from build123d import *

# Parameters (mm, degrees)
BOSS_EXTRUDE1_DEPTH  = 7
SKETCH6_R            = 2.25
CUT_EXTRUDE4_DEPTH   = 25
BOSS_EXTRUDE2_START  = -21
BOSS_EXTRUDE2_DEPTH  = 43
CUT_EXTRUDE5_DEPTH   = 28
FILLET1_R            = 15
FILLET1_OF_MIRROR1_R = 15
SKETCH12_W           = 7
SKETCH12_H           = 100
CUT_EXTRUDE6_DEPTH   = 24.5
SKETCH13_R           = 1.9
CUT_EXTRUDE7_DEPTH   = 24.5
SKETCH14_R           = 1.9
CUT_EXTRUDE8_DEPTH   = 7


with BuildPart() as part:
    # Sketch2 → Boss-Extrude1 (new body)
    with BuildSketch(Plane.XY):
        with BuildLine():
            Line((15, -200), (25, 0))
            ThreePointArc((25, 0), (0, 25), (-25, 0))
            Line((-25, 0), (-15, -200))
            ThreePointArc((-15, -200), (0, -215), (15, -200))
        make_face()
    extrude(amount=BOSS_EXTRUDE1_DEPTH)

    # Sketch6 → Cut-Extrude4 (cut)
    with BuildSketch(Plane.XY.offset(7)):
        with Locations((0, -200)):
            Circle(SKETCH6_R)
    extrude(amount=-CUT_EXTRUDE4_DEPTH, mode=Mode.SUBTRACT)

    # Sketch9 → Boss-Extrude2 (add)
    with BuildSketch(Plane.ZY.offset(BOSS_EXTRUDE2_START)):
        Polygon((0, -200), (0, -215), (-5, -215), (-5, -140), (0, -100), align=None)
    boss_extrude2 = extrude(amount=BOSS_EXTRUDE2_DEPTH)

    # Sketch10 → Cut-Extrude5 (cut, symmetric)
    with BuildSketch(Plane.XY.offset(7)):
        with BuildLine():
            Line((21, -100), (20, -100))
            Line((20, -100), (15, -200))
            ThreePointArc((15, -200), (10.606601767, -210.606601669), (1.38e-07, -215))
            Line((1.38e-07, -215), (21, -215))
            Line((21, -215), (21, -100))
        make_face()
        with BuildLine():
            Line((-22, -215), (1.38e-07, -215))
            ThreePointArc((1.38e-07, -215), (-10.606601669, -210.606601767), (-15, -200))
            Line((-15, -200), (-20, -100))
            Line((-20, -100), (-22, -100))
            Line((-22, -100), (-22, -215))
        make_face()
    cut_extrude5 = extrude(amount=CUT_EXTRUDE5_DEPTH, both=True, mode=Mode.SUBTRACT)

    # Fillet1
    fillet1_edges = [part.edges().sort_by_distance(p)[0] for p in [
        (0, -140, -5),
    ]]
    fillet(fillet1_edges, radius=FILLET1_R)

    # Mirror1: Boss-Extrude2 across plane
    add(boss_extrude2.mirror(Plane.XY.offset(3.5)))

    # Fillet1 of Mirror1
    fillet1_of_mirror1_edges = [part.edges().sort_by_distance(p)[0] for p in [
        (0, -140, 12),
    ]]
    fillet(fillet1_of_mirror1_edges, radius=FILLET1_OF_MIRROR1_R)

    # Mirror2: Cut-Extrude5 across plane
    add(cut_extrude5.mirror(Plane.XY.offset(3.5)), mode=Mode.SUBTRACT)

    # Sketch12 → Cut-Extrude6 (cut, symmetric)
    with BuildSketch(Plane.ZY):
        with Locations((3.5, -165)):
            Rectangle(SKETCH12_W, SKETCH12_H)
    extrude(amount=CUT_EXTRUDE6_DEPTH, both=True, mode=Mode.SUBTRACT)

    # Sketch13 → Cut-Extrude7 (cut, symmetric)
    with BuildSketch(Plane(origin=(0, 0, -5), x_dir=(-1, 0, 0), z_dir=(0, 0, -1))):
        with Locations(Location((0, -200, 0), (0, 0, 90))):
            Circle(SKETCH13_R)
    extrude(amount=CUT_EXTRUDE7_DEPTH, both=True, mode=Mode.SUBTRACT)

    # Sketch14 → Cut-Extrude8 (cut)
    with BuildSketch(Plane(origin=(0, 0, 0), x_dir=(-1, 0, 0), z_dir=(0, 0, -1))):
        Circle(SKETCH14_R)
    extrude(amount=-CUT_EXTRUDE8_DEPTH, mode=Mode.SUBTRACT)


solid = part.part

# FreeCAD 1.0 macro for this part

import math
import FreeCAD as App
import Part
import Sketcher

V = App.Vector
Q = App.Units.Quantity


def edges_at(feature, points):
    """Names of the edges that pass closest to the given points."""
    edges = feature.Shape.Edges
    near = lambda p: min(range(len(edges)), key=lambda i: edges[i].distToShape(Part.Vertex(*p))[0])
    return sorted({f"Edge{near(p) + 1}" for p in points})


def add_polygon(sketch, points):
    """Adds a closed chain of lines whose ends are joined by coincident constraints."""
    first, n = sketch.GeometryCount, len(points)
    for a, b in zip(points, points[1:] + points[:1]):
        sketch.addGeometry(Part.LineSegment(App.Vector(*a, 0), App.Vector(*b, 0)), False)
    for i in range(n):
        sketch.addConstraint(Sketcher.Constraint("Coincident", first + i, 2, first + (i + 1) % n, 1))

doc = App.newDocument("Part")
params = doc.addObject("Spreadsheet::Sheet", "Params")
for row, (alias, value) in enumerate([
    ("sketch1_radius", "25 mm"),
    ("sketch1_radius2", "15 mm"),
    ("pad1_length", "7 mm"),
    ("sketch2_diameter", "4.5 mm"),
    ("pocket1_length", "25 mm"),
    ("sketch3_width", "115 mm"),
    ("sketch3_width2", "75 mm"),
    ("sketch3_height", "5 mm"),
    ("pad2_length", "43 mm"),
    ("sketch4_radius", "15 mm"),
    ("sketch4_width", "1 mm"),
    ("sketch4_width2", "21 mm"),
    ("sketch4_width3", "22 mm"),
    ("sketch4_height", "115 mm"),
    ("pocket2_length", "56 mm"),
    ("fillet_radius", "15 mm"),
    ("fillet2_radius", "15 mm"),
    ("sketch5_width", "100 mm"),
    ("sketch5_height", "7 mm"),
    ("pocket3_length", "49 mm"),
    ("sketch6_diameter", "3.8 mm"),
    ("pocket4_length", "49 mm"),
    ("sketch7_diameter", "3.8 mm"),
    ("pocket5_length", "7 mm"),
], start=1):
    params.set(f"A{row}", alias)
    params.set(f"B{row}", "=" + value)
    params.setAlias(f"B{row}", alias)

body = doc.addObject("PartDesign::Body", "Body")

# Sketch on XY plane
sketch1 = body.newObject("Sketcher::SketchObject", "Sketch")
sketch1.AttachmentSupport = (doc.getObject("XY_Plane"), [""])
sketch1.MapMode = "FlatFace"
sketch1.addGeometry(Part.LineSegment(V(15, -200, 0), V(25, 0, 0)), False)
sketch1.addGeometry(Part.ArcOfCircle(Part.Circle(V(0, 0, 0), V(0, 0, 1), 25), math.radians(0), math.radians(180)), False)
sketch1.addGeometry(Part.LineSegment(V(-25, 0, 0), V(-15, -200, 0)), False)
sketch1.addGeometry(Part.ArcOfCircle(Part.Circle(V(0, -200, 0), V(0, 0, 1), 15), math.radians(180), math.radians(360)), False)
sketch1.addConstraint(Sketcher.Constraint("Coincident", 0, 2, 1, 1))
sketch1.addConstraint(Sketcher.Constraint("Coincident", 1, 2, 2, 1))
sketch1.addConstraint(Sketcher.Constraint("Coincident", 2, 2, 3, 1))
sketch1.addConstraint(Sketcher.Constraint("Coincident", 3, 2, 0, 1))
sketch1.addConstraint(Sketcher.Constraint("Coincident", 1, 3, -1, 1))
sketch1.addConstraint(Sketcher.Constraint("Symmetric", 2, 2, 3, 2, -2))
sketch1.addConstraint(Sketcher.Constraint("PointOnObject", 0, 2, -1))
sketch1.addConstraint(Sketcher.Constraint("PointOnObject", 1, 2, -1))
sketch1.addConstraint(Sketcher.Constraint("Horizontal", 3, 3, 2, 2))
sketch1.addConstraint(Sketcher.Constraint("Radius", 1, Q("25 mm")))
sketch1.addConstraint(Sketcher.Constraint("Radius", 3, Q("15 mm")))
sketch1.addConstraint(Sketcher.Constraint("DistanceY", 3, 3, -1, 1, Q("200 mm")))
sketch1.setExpression("Constraints[9]", "Params.sketch1_radius")
sketch1.setExpression("Constraints[10]", "Params.sketch1_radius2")
pad1 = body.newObject("PartDesign::Pad", "Pad")
pad1.Profile = sketch1
pad1.setExpression("Length", "Params.pad1_length")

# Sketch on XY plane
sketch2 = body.newObject("Sketcher::SketchObject", "Sketch001")
sketch2.AttachmentSupport = (doc.getObject("XY_Plane"), [""])
sketch2.MapMode = "FlatFace"
sketch2.AttachmentOffset = App.Placement(V(0, 0, 7), App.Rotation())
sketch2.addGeometry(Part.Circle(V(0, -200, 0), V(0, 0, 1), 2.2), False)
sketch2.addConstraint(Sketcher.Constraint("PointOnObject", 0, 3, -2))
sketch2.addConstraint(Sketcher.Constraint("Diameter", 0, Q("4.5 mm")))
sketch2.addConstraint(Sketcher.Constraint("DistanceY", 0, 3, -1, 1, Q("200 mm")))
sketch2.setExpression("Constraints[1]", "Params.sketch2_diameter")
pocket1 = body.newObject("PartDesign::Pocket", "Pocket")
pocket1.Profile = sketch2
pocket1.setExpression("Length", "Params.pocket1_length")

# Sketch on YZ plane
sketch3 = body.newObject("Sketcher::SketchObject", "Sketch002")
sketch3.AttachmentSupport = (doc.getObject("YZ_Plane"), [""])
sketch3.MapMode = "FlatFace"
sketch3.AttachmentOffset = App.Placement(V(0, 0, 21), App.Rotation())
add_polygon(sketch3, [(-215, 0), (-100, 0), (-140, -5), (-215, -5)])  # lines 0-3
sketch3.addConstraint(Sketcher.Constraint("Horizontal", 0))
sketch3.addConstraint(Sketcher.Constraint("Horizontal", 2))
sketch3.addConstraint(Sketcher.Constraint("Vertical", 3))
sketch3.addConstraint(Sketcher.Constraint("PointOnObject", 0, 2, -1))
sketch3.addConstraint(Sketcher.Constraint("DistanceX", 0, 1, 0, 2, Q("115 mm")))
sketch3.addConstraint(Sketcher.Constraint("DistanceX", 2, 2, 2, 1, Q("75 mm")))
sketch3.addConstraint(Sketcher.Constraint("DistanceY", 3, 1, 3, 2, Q("5 mm")))
sketch3.addConstraint(Sketcher.Constraint("DistanceX", 0, 2, -1, 1, Q("100 mm")))
sketch3.setExpression("Constraints[8]", "Params.sketch3_width")
sketch3.setExpression("Constraints[9]", "Params.sketch3_width2")
sketch3.setExpression("Constraints[10]", "Params.sketch3_height")
pad2 = body.newObject("PartDesign::Pad", "Pad001")
pad2.Profile = sketch3
pad2.setExpression("Length", "Params.pad2_length")
pad2.Reversed = True

# Sketch on XY plane
sketch4 = body.newObject("Sketcher::SketchObject", "Sketch003")
sketch4.AttachmentSupport = (doc.getObject("XY_Plane"), [""])
sketch4.MapMode = "FlatFace"
sketch4.AttachmentOffset = App.Placement(V(0, 0, 7), App.Rotation())
sketch4.addGeometry(Part.LineSegment(V(21, -100, 0), V(20, -100, 0)), False)
sketch4.addGeometry(Part.LineSegment(V(20, -100, 0), V(15, -200, 0)), False)
sketch4.addGeometry(Part.ArcOfCircle(Part.Circle(V(0, -200, 0), V(0, 0, 1), 15), math.radians(-90), math.radians(0)), False)
sketch4.addGeometry(Part.LineSegment(V(0, -215, 0), V(21, -215, 0)), False)
sketch4.addGeometry(Part.LineSegment(V(21, -215, 0), V(21, -100, 0)), False)
sketch4.addGeometry(Part.LineSegment(V(-22, -215, 0), V(0, -215, 0)), False)
sketch4.addGeometry(Part.ArcOfCircle(Part.Circle(V(0, -200, 0), V(0, 0, 1), 15), math.radians(180), math.radians(270)), False)
sketch4.addGeometry(Part.LineSegment(V(-15, -200, 0), V(-20, -100, 0)), False)
sketch4.addGeometry(Part.LineSegment(V(-20, -100, 0), V(-22, -100, 0)), False)
sketch4.addGeometry(Part.LineSegment(V(-22, -100, 0), V(-22, -215, 0)), False)
sketch4.addConstraint(Sketcher.Constraint("Coincident", 0, 2, 1, 1))
sketch4.addConstraint(Sketcher.Constraint("Coincident", 1, 2, 2, 2))
sketch4.addConstraint(Sketcher.Constraint("Tangent", 2, 1, 3, 1))
sketch4.addConstraint(Sketcher.Constraint("Coincident", 3, 2, 4, 1))
sketch4.addConstraint(Sketcher.Constraint("Coincident", 4, 2, 0, 1))
sketch4.addConstraint(Sketcher.Constraint("Tangent", 5, 2, 6, 2))
sketch4.addConstraint(Sketcher.Constraint("Coincident", 6, 1, 7, 1))
sketch4.addConstraint(Sketcher.Constraint("Coincident", 7, 2, 8, 1))
sketch4.addConstraint(Sketcher.Constraint("Coincident", 8, 2, 9, 1))
sketch4.addConstraint(Sketcher.Constraint("Coincident", 9, 2, 5, 1))
sketch4.addConstraint(Sketcher.Constraint("Horizontal", 0))
sketch4.addConstraint(Sketcher.Constraint("Horizontal", 3))
sketch4.addConstraint(Sketcher.Constraint("Vertical", 4))
sketch4.addConstraint(Sketcher.Constraint("Horizontal", 5))
sketch4.addConstraint(Sketcher.Constraint("Horizontal", 8))
sketch4.addConstraint(Sketcher.Constraint("Vertical", 9))
sketch4.addConstraint(Sketcher.Constraint("Coincident", 6, 3, 2, 3))
sketch4.addConstraint(Sketcher.Constraint("Equal", 2, 6))
sketch4.addConstraint(Sketcher.Constraint("Symmetric", 1, 2, 6, 1, -2))
sketch4.addConstraint(Sketcher.Constraint("Symmetric", 0, 2, 7, 2, -2))
sketch4.addConstraint(Sketcher.Constraint("Horizontal", 6, 3, 1, 2))
sketch4.addConstraint(Sketcher.Constraint("Radius", 2, Q("15 mm")))
sketch4.addConstraint(Sketcher.Constraint("DistanceX", 0, 2, 0, 1, Q("1 mm")))
sketch4.addConstraint(Sketcher.Constraint("DistanceX", 3, 1, 3, 2, Q("21 mm")))
sketch4.addConstraint(Sketcher.Constraint("DistanceX", 5, 1, 5, 2, Q("22 mm")))
sketch4.addConstraint(Sketcher.Constraint("DistanceY", 4, 1, 4, 2, Q("115 mm")))
sketch4.addConstraint(Sketcher.Constraint("DistanceY", 2, 3, -1, 1, Q("200 mm")))
sketch4.setExpression("Constraints[21]", "Params.sketch4_radius")
sketch4.setExpression("Constraints[22]", "Params.sketch4_width")
sketch4.setExpression("Constraints[23]", "Params.sketch4_width2")
sketch4.setExpression("Constraints[24]", "Params.sketch4_width3")
sketch4.setExpression("Constraints[25]", "Params.sketch4_height")
pocket2 = body.newObject("PartDesign::Pocket", "Pocket001")
pocket2.Profile = sketch4
pocket2.setExpression("Length", "Params.pocket2_length")
pocket2.Midplane = True
doc.recompute()

fillet = body.newObject("PartDesign::Fillet", "Fillet")
fillet.Base = (pocket2, edges_at(pocket2, [(0, -140, -5)]))
fillet.setExpression("Radius", "Params.fillet_radius")
doc.recompute()

datumplane = body.newObject("PartDesign::Plane", "DatumPlane")
datumplane.AttachmentSupport = (doc.getObject("XY_Plane"), [""])
datumplane.MapMode = "FlatFace"
datumplane.AttachmentOffset = App.Placement(V(0, 0, 3.5), App.Rotation())
mirrored = body.newObject("PartDesign::Mirrored", "Mirrored")
mirrored.Originals = [pad2]
mirrored.MirrorPlane = (datumplane, [""])
body.Tip = mirrored
doc.recompute()

fillet2 = body.newObject("PartDesign::Fillet", "Fillet001")
fillet2.Base = (mirrored, edges_at(mirrored, [(-0.5, -140, 12)]))
fillet2.setExpression("Radius", "Params.fillet2_radius")
doc.recompute()

datumplane2 = body.newObject("PartDesign::Plane", "DatumPlane001")
datumplane2.AttachmentSupport = (doc.getObject("XY_Plane"), [""])
datumplane2.MapMode = "FlatFace"
datumplane2.AttachmentOffset = App.Placement(V(0, 0, 3.5), App.Rotation())
mirrored2 = body.newObject("PartDesign::Mirrored", "Mirrored001")
mirrored2.Originals = [pocket2]
mirrored2.MirrorPlane = (datumplane2, [""])
body.Tip = mirrored2

# Sketch on YZ plane
sketch5 = body.newObject("Sketcher::SketchObject", "Sketch004")
sketch5.AttachmentSupport = (doc.getObject("YZ_Plane"), [""])
sketch5.MapMode = "FlatFace"
add_polygon(sketch5, [(-115, 0), (-215, 0), (-215, 7), (-115, 7)])  # lines 0-3
sketch5.addConstraint(Sketcher.Constraint("Horizontal", 0))
sketch5.addConstraint(Sketcher.Constraint("Vertical", 1))
sketch5.addConstraint(Sketcher.Constraint("Horizontal", 2))
sketch5.addConstraint(Sketcher.Constraint("Vertical", 3))
sketch5.addConstraint(Sketcher.Constraint("PointOnObject", 0, 2, -1))
sketch5.addConstraint(Sketcher.Constraint("DistanceX", 0, 2, 0, 1, Q("100 mm")))
sketch5.addConstraint(Sketcher.Constraint("DistanceY", 1, 1, 1, 2, Q("7 mm")))
sketch5.addConstraint(Sketcher.Constraint("DistanceX", 0, 2, -1, 1, Q("215 mm")))
sketch5.setExpression("Constraints[9]", "Params.sketch5_width")
sketch5.setExpression("Constraints[10]", "Params.sketch5_height")
pocket3 = body.newObject("PartDesign::Pocket", "Pocket002")
pocket3.Profile = sketch5
pocket3.setExpression("Length", "Params.pocket3_length")
pocket3.Midplane = True

# Sketch on XY plane
sketch6 = body.newObject("Sketcher::SketchObject", "Sketch005")
sketch6.AttachmentSupport = (doc.getObject("XY_Plane"), [""])
sketch6.MapMode = "FlatFace"
sketch6.AttachmentOffset = App.Placement(V(0, 0, -5), App.Rotation())
sketch6.addGeometry(Part.Circle(V(0, -200, 0), V(0, 0, 1), 1.9), False)
sketch6.addConstraint(Sketcher.Constraint("PointOnObject", 0, 3, -2))
sketch6.addConstraint(Sketcher.Constraint("Diameter", 0, Q("3.8 mm")))
sketch6.addConstraint(Sketcher.Constraint("DistanceY", 0, 3, -1, 1, Q("200 mm")))
sketch6.setExpression("Constraints[1]", "Params.sketch6_diameter")
pocket4 = body.newObject("PartDesign::Pocket", "Pocket003")
pocket4.Profile = sketch6
pocket4.setExpression("Length", "Params.pocket4_length")
pocket4.Midplane = True

# Sketch on XY plane
sketch7 = body.newObject("Sketcher::SketchObject", "Sketch006")
sketch7.AttachmentSupport = (doc.getObject("XY_Plane"), [""])
sketch7.MapMode = "FlatFace"
sketch7.addGeometry(Part.Circle(V(0, 0, 0), V(0, 0, 1), 1.9), False)
sketch7.addConstraint(Sketcher.Constraint("Coincident", 0, 3, -1, 1))
sketch7.addConstraint(Sketcher.Constraint("Diameter", 0, Q("3.8 mm")))
sketch7.setExpression("Constraints[1]", "Params.sketch7_diameter")
pocket5 = body.newObject("PartDesign::Pocket", "Pocket004")
pocket5.Profile = sketch7
pocket5.setExpression("Length", "Params.pocket5_length")
pocket5.Reversed = True

doc.recompute()
